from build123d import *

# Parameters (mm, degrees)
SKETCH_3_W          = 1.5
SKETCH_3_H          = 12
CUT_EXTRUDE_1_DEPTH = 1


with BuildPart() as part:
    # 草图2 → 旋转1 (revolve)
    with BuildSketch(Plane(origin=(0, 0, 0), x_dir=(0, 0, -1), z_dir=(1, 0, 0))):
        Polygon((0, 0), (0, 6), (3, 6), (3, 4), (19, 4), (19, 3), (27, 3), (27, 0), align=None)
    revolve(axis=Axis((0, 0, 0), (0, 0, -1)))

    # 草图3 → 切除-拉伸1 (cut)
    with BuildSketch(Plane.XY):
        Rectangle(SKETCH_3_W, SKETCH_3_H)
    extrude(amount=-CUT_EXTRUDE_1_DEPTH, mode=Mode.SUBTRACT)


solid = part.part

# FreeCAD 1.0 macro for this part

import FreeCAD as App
import Part
import Sketcher
from FreeCAD import Vector
Q = App.Units.Quantity

doc = App.newDocument("Part")
body = doc.addObject("PartDesign::Body", "Body")

# Sketch on YZ plane
sketch1 = body.newObject("Sketcher::SketchObject", "Sketch")
sketch1.AttachmentSupport = (doc.getObject("YZ_Plane"), [""])
sketch1.MapMode = "FlatFace"
sketch1.addGeometry([
    Part.LineSegment(Vector(6, 0, 0), Vector(0, 0, 0)),  # 0
    Part.LineSegment(Vector(0, 0, 0), Vector(0, -27, 0)),  # 1
    Part.LineSegment(Vector(0, -27, 0), Vector(3, -27, 0)),  # 2
    Part.LineSegment(Vector(3, -27, 0), Vector(3, -19, 0)),  # 3
    Part.LineSegment(Vector(3, -19, 0), Vector(4, -19, 0)),  # 4
    Part.LineSegment(Vector(4, -19, 0), Vector(4, -3, 0)),  # 5
    Part.LineSegment(Vector(4, -3, 0), Vector(6, -3, 0)),  # 6
    Part.LineSegment(Vector(6, -3, 0), Vector(6, 0, 0)),  # 7
], False)
sketch1.addConstraint([
    Sketcher.Constraint("Coincident", 0, 2, 1, 1),
    Sketcher.Constraint("Coincident", 1, 2, 2, 1),
    Sketcher.Constraint("Coincident", 2, 2, 3, 1),
    Sketcher.Constraint("Coincident", 3, 2, 4, 1),
    Sketcher.Constraint("Coincident", 4, 2, 5, 1),
    Sketcher.Constraint("Coincident", 5, 2, 6, 1),
    Sketcher.Constraint("Coincident", 6, 2, 7, 1),
    Sketcher.Constraint("Coincident", 7, 2, 0, 1),
    Sketcher.Constraint("Horizontal", 0),
    Sketcher.Constraint("Vertical", 1),
    Sketcher.Constraint("Horizontal", 2),
    Sketcher.Constraint("Vertical", 3),
    Sketcher.Constraint("Horizontal", 4),
    Sketcher.Constraint("Vertical", 5),
    Sketcher.Constraint("Horizontal", 6),
    Sketcher.Constraint("Vertical", 7),
    Sketcher.Constraint("Coincident", 0, 2, -1, 1),
    Sketcher.Constraint("Equal", 2, 7),
    Sketcher.Constraint("DistanceX", 0, 2, 0, 1, Q("6 mm")),
    Sketcher.Constraint("DistanceX", 2, 1, 2, 2, Q("3 mm")),
    Sketcher.Constraint("DistanceX", 4, 1, 4, 2, Q("1 mm")),
    Sketcher.Constraint("DistanceY", 1, 2, 1, 1, Q("27 mm")),
    Sketcher.Constraint("DistanceY", 3, 1, 3, 2, Q("8 mm")),
])
revolution = body.newObject("PartDesign::Revolution", "Revolution")
revolution.Profile = sketch1
revolution.ReferenceAxis = (sketch1, ["V_Axis"])
revolution.Angle = 360

# Sketch on XY plane
sketch2 = body.newObject("Sketcher::SketchObject", "Sketch001")
sketch2.AttachmentSupport = (doc.getObject("XY_Plane"), [""])
sketch2.MapMode = "FlatFace"
sketch2.addGeometry([
    Part.LineSegment(Vector(-0.8, 6, 0), Vector(-0.8, -6, 0)),
    Part.LineSegment(Vector(-0.8, -6, 0), Vector(0.8, -6, 0)),
    Part.LineSegment(Vector(0.8, -6, 0), Vector(0.8, 6, 0)),
    Part.LineSegment(Vector(0.8, 6, 0), Vector(-0.8, 6, 0)),
], False)
sketch2.addConstraint([
    Sketcher.Constraint("Coincident", 0, 2, 1, 1),
    Sketcher.Constraint("Coincident", 1, 2, 2, 1),
    Sketcher.Constraint("Coincident", 2, 2, 3, 1),
    Sketcher.Constraint("Coincident", 3, 2, 0, 1),
    Sketcher.Constraint("Vertical", 0),
    Sketcher.Constraint("Horizontal", 1),
    Sketcher.Constraint("Vertical", 2),
    Sketcher.Constraint("Horizontal", 3),
    Sketcher.Constraint("Symmetric", 0, 2, 2, 2, -1, 1),
    Sketcher.Constraint("DistanceY", 0, 2, 0, 1, Q("12 mm")),
    Sketcher.Constraint("DistanceX", 1, 1, 1, 2, Q("1.5 mm")),
])
pocket1 = body.newObject("PartDesign::Pocket", "Pocket")
pocket1.Profile = sketch2
pocket1.Length = 1

doc.recompute()
